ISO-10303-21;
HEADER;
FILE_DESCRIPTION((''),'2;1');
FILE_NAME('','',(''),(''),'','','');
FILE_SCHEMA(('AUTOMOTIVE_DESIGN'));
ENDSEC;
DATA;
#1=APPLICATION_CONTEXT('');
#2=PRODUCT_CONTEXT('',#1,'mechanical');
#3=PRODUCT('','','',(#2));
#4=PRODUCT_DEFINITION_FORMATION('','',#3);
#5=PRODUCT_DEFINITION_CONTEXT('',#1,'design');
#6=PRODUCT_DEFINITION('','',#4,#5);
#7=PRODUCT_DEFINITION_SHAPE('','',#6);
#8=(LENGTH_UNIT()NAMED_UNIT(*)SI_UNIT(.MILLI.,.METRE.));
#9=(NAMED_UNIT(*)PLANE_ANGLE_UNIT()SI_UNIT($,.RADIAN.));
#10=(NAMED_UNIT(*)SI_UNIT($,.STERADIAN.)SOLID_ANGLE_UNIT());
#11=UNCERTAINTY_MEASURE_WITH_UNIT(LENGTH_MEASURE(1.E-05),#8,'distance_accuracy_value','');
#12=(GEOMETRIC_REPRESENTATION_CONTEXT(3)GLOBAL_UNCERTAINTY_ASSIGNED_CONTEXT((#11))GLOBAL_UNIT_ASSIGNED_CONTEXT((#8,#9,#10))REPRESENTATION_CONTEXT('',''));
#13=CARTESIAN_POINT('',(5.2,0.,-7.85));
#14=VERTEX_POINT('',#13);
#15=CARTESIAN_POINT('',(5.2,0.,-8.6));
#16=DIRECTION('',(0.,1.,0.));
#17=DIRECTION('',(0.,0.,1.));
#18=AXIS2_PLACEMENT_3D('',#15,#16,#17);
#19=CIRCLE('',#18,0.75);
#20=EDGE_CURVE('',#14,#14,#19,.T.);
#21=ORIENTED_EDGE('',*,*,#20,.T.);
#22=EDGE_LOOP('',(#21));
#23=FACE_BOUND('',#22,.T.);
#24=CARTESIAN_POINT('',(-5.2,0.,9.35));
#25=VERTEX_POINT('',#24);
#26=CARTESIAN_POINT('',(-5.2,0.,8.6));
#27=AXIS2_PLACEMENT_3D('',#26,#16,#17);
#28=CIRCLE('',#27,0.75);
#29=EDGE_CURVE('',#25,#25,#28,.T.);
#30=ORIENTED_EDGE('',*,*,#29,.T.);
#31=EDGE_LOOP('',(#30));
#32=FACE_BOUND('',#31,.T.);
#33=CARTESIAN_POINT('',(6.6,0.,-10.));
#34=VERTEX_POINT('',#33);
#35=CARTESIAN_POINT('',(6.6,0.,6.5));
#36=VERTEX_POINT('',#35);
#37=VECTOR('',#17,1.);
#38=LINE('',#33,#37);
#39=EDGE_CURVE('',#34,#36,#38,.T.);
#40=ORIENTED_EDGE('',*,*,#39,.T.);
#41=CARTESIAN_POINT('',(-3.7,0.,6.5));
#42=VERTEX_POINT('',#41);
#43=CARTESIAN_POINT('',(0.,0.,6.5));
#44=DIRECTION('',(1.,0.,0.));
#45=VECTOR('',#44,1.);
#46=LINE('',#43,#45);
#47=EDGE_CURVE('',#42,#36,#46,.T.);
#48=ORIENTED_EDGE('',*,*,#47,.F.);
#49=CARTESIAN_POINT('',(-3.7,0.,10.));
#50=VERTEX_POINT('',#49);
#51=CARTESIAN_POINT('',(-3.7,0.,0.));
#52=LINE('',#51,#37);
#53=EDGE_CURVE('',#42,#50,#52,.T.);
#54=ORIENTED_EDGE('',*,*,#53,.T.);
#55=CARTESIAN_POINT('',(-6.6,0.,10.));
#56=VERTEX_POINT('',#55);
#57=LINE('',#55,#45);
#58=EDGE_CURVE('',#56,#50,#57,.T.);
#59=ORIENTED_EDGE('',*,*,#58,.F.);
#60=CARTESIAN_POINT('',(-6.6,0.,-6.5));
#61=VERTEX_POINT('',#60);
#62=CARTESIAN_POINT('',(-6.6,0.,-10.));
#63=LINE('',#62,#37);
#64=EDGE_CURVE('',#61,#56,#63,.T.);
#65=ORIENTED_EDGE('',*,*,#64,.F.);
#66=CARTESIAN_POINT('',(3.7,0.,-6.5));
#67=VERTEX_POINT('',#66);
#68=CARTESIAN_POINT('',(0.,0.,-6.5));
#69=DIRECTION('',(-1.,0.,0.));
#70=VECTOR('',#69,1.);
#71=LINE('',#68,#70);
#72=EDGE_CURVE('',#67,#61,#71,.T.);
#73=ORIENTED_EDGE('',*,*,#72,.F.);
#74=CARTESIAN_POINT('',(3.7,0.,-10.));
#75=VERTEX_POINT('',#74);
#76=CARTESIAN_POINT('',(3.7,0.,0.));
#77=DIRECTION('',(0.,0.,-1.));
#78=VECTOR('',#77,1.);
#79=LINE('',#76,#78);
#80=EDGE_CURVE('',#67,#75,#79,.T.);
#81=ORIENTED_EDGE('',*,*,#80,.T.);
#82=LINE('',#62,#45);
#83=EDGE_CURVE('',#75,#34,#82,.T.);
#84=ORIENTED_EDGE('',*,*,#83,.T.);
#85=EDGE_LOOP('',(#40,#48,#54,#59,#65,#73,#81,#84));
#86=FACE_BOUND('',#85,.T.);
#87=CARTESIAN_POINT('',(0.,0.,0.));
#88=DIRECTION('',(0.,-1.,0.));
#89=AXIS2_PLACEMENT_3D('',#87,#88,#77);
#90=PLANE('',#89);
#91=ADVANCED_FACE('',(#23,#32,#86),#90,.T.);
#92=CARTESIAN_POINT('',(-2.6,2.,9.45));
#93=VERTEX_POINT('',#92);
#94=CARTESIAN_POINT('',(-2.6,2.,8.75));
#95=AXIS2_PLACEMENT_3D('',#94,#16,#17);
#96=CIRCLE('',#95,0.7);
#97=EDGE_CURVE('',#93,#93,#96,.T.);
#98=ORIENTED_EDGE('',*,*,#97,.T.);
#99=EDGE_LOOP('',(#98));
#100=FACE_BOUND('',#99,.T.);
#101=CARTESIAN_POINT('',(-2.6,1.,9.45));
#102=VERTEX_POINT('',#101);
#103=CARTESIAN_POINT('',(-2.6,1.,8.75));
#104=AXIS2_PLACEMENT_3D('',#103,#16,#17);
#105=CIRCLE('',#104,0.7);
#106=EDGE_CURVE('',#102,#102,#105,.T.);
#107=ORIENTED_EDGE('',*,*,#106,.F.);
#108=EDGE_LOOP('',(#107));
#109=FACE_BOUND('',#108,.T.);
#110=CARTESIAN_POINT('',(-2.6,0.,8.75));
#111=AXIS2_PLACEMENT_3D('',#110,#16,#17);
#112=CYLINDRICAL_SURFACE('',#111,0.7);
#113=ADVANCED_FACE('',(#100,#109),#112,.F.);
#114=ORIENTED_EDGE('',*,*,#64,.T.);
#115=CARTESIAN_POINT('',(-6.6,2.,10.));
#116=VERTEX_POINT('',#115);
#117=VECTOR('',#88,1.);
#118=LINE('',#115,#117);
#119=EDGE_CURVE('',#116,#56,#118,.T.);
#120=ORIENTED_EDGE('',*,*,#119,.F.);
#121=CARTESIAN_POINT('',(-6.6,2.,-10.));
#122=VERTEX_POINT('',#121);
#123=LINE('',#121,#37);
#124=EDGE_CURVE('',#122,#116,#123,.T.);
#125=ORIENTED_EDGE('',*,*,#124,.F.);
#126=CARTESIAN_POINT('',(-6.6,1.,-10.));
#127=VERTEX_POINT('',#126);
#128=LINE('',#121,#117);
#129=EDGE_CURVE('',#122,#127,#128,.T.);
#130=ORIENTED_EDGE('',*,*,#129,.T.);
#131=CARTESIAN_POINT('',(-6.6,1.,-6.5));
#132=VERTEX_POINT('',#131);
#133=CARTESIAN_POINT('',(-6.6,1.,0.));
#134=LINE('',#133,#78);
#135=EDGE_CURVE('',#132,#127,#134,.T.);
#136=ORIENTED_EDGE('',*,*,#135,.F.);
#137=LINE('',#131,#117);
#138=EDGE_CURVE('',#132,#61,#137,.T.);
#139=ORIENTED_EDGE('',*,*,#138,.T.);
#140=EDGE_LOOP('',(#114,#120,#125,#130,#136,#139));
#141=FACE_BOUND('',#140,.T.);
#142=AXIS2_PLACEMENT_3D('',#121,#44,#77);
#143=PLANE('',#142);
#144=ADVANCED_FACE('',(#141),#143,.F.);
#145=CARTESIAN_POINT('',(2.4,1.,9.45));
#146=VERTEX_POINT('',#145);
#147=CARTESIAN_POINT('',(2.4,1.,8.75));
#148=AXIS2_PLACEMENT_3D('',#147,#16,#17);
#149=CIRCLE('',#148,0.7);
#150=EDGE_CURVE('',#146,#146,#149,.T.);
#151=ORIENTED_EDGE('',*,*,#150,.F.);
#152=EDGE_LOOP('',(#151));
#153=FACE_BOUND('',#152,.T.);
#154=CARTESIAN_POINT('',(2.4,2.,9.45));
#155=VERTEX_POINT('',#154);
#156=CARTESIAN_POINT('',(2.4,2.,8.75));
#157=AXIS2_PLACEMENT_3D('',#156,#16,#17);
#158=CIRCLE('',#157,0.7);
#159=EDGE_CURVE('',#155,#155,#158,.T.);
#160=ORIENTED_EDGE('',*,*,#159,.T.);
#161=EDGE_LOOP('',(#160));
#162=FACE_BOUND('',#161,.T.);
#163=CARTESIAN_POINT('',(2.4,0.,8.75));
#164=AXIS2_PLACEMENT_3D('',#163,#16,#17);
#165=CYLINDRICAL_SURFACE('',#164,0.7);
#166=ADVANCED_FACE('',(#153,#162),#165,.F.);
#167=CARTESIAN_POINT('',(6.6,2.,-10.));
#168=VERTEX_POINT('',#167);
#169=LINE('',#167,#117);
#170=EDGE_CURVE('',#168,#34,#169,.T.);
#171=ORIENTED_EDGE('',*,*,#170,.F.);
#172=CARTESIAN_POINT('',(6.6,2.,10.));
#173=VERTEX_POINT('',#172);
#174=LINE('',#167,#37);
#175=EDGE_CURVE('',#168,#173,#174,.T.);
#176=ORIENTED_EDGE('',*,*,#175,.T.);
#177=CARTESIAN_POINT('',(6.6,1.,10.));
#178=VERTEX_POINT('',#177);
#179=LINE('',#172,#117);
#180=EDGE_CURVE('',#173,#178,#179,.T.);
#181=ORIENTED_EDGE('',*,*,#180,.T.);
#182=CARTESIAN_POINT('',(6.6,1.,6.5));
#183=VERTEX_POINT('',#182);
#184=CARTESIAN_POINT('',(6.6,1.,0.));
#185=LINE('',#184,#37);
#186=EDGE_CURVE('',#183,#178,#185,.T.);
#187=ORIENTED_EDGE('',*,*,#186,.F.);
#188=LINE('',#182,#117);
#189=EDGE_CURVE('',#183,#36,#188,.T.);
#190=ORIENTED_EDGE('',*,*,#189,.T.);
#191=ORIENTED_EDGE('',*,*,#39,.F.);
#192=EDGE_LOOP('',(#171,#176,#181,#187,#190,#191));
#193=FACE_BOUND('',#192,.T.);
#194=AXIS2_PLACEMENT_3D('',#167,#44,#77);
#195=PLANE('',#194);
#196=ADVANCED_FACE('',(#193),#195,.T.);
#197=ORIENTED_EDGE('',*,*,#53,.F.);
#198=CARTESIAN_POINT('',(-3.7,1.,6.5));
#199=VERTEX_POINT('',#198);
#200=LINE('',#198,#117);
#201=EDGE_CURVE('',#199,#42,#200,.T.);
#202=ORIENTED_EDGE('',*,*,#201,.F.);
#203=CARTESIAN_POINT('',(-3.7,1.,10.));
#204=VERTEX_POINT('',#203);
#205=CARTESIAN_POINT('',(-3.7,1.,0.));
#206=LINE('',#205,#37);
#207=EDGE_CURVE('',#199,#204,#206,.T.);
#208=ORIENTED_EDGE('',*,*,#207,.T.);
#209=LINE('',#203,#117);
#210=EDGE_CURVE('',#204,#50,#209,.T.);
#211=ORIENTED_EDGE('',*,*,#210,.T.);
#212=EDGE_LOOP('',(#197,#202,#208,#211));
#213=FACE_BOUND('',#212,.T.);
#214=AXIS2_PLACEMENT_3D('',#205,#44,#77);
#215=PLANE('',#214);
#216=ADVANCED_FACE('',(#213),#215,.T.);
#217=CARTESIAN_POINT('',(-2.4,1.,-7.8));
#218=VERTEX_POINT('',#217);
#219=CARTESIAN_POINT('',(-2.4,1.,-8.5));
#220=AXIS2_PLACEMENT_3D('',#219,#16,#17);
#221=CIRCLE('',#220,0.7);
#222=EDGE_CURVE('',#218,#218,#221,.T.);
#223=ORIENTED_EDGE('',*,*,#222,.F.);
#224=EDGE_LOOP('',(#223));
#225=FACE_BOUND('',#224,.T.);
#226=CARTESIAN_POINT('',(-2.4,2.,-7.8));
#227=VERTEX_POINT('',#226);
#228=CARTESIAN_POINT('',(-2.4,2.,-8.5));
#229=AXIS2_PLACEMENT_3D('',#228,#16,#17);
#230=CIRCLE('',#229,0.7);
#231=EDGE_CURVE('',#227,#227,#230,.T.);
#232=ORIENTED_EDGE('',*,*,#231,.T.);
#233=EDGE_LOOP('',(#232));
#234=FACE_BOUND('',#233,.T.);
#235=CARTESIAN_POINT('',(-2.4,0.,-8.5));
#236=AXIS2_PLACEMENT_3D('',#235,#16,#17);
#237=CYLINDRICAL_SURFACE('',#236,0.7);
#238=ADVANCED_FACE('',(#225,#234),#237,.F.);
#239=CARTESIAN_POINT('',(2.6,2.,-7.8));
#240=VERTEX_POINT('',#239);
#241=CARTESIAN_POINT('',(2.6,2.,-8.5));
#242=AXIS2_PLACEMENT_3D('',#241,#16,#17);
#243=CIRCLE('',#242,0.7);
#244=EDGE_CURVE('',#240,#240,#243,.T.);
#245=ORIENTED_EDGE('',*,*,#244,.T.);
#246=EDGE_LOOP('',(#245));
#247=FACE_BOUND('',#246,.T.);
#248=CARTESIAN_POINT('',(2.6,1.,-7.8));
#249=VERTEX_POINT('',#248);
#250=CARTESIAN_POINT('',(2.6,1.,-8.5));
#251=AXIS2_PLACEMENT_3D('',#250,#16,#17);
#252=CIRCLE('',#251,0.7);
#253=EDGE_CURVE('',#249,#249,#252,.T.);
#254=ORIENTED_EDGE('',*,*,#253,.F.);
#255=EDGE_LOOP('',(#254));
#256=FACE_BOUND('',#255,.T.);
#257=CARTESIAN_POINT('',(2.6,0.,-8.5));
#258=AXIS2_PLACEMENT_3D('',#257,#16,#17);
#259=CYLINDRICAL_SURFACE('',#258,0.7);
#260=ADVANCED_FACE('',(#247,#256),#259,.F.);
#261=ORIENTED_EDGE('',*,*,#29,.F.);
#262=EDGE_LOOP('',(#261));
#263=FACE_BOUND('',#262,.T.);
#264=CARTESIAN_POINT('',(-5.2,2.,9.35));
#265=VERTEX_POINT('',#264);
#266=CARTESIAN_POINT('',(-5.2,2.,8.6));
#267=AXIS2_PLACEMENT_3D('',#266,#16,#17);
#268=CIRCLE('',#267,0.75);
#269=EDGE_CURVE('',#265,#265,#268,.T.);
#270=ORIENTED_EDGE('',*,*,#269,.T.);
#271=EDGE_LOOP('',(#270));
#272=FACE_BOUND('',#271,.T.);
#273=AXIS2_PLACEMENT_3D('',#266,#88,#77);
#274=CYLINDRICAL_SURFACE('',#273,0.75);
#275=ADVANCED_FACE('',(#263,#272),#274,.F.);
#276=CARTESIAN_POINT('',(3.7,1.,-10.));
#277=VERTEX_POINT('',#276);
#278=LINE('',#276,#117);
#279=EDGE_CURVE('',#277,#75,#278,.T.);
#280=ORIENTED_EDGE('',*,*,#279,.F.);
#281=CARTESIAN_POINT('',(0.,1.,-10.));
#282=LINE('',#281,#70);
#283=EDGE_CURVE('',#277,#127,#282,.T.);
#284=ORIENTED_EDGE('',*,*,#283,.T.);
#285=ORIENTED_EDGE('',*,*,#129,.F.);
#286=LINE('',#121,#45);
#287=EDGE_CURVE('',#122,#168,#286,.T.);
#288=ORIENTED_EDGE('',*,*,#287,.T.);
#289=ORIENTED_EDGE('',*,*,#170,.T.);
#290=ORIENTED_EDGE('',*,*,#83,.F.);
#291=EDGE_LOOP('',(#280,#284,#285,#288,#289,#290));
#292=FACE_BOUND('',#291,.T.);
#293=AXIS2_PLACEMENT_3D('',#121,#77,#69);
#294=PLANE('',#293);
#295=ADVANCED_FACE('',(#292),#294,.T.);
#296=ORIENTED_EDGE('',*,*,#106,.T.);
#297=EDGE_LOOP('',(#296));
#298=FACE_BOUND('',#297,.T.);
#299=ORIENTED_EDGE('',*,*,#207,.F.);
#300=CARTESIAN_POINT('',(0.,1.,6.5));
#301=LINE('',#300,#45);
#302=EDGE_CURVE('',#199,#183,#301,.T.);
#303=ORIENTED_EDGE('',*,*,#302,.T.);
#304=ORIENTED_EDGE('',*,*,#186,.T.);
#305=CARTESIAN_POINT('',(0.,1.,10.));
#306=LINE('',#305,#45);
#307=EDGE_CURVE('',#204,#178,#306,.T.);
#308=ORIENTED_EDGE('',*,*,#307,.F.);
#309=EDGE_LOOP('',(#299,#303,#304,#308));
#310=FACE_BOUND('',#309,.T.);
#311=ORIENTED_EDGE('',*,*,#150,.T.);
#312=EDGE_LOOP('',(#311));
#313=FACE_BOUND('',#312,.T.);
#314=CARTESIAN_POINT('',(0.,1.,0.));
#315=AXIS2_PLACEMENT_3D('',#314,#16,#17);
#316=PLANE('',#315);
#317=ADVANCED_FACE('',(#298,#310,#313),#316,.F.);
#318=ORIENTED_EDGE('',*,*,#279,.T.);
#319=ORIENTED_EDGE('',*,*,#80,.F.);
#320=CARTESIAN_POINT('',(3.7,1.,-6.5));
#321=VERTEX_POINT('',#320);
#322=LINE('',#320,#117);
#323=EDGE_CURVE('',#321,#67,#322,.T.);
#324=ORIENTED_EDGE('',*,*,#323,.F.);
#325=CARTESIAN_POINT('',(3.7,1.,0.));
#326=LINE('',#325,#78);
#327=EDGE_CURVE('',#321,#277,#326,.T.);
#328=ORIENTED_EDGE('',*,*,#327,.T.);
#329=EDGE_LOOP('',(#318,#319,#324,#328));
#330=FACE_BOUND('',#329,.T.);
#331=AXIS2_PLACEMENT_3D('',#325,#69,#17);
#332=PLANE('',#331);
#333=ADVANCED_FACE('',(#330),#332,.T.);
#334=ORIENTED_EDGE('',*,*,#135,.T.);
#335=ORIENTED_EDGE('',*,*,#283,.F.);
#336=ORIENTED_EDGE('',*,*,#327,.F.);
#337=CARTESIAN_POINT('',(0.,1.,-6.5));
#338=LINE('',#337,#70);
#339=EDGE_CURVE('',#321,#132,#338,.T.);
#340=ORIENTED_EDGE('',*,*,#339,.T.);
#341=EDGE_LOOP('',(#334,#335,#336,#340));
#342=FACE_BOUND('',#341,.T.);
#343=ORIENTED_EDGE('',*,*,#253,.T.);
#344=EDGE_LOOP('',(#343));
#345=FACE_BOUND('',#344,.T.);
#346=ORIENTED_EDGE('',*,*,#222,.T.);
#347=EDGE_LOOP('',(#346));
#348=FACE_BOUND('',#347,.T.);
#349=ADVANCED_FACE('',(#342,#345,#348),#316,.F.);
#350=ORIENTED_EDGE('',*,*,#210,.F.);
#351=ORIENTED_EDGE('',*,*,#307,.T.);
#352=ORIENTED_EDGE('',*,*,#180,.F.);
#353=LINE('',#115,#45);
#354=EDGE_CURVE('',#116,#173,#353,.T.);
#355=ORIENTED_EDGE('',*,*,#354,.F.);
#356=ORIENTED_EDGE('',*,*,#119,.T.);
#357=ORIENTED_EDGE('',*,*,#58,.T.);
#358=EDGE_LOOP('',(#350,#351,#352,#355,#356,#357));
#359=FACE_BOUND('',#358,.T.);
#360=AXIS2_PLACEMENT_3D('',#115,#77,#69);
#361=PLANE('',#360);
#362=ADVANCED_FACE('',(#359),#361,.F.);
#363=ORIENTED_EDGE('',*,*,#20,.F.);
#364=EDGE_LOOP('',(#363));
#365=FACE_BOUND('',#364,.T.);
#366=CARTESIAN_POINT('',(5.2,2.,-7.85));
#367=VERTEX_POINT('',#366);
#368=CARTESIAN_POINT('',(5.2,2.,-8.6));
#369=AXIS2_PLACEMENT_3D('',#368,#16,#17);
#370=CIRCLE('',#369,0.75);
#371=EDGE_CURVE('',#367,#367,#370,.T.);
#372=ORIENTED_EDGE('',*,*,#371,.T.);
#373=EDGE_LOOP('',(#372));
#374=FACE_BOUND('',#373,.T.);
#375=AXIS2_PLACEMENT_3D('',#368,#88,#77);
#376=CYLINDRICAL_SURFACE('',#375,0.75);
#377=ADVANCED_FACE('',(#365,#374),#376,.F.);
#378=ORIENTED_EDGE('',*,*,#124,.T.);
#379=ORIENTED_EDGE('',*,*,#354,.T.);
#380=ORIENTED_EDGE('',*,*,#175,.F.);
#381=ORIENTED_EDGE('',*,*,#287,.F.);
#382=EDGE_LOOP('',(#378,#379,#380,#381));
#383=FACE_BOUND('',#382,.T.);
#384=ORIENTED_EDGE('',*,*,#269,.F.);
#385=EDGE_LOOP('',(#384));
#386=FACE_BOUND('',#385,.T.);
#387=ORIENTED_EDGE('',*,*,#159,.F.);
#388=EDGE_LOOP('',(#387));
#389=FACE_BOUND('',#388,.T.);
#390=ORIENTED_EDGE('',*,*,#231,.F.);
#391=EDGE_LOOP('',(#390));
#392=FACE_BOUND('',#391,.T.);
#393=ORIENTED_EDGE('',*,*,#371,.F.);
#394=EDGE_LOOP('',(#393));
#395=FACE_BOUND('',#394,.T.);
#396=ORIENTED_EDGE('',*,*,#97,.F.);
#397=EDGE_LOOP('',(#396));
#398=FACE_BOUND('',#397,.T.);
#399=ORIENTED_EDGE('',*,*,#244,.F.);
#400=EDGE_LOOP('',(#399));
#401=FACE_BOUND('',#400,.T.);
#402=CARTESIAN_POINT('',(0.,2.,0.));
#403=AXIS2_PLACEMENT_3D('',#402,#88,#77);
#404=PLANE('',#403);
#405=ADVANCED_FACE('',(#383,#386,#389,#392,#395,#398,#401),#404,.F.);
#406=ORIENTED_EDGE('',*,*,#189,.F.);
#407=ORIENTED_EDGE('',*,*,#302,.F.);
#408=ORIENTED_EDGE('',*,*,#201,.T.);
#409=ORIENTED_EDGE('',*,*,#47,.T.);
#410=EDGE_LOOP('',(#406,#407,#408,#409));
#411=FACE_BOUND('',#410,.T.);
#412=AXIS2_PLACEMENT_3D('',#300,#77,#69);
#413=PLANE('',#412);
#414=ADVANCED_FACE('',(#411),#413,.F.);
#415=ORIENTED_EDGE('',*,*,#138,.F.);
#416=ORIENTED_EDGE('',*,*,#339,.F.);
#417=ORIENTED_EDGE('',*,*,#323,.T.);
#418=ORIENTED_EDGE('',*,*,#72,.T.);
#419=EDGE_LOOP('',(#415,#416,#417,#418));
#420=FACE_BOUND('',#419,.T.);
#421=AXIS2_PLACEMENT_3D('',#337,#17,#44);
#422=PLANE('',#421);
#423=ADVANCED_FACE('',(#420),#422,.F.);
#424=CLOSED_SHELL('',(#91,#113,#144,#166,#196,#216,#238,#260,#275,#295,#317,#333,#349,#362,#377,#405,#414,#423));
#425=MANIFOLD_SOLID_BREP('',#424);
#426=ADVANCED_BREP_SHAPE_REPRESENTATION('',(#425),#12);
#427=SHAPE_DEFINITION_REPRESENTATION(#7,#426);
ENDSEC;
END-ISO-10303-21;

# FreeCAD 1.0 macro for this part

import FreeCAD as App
import Part
import Sketcher
Q = App.Units.Quantity


def add_polygon(sketch, points):
    """Adds a closed chain of lines whose ends are joined by coincident constraints."""
    first, n = sketch.GeometryCount, len(points)
    for a, b in zip(points, points[1:] + points[:1]):
        sketch.addGeometry(Part.LineSegment(App.Vector(*a, 0), App.Vector(*b, 0)), False)
    for i in range(n):
        sketch.addConstraint(Sketcher.Constraint("Coincident", first + i, 2, first + (i + 1) % n, 1))

doc = App.newDocument("Part")
body = doc.addObject("PartDesign::Body", "Body")

# Sketch on XZ plane
sketch1 = body.newObject("Sketcher::SketchObject", "Sketch")
sketch1.AttachmentSupport = (doc.getObject("XZ_Plane"), [""])
sketch1.MapMode = "FlatFace"
add_polygon(sketch1, [(-7, -10), (-7, 10), (7, 10), (7, -10)])  # lines 0-3
sketch1.addConstraint(Sketcher.Constraint("Vertical", 0))
sketch1.addConstraint(Sketcher.Constraint("Horizontal", 1))
sketch1.addConstraint(Sketcher.Constraint("Vertical", 2))
sketch1.addConstraint(Sketcher.Constraint("Horizontal", 3))
sketch1.addConstraint(Sketcher.Constraint("Symmetric", 0, 2, 2, 2, -1, 1))
sketch1.addConstraint(Sketcher.Constraint("DistanceY", 0, 1, 0, 2, Q("20 mm")))
sketch1.addConstraint(Sketcher.Constraint("DistanceX", 1, 1, 1, 2, Q("13.2 mm")))
pad1 = body.newObject("PartDesign::Pad", "Pad")
pad1.Profile = sketch1
pad1.Length = 2
pad1.Reversed = True

# Sketch on XZ plane
sketch2 = body.newObject("Sketcher::SketchObject", "Sketch001")
sketch2.AttachmentSupport = (doc.getObject("XZ_Plane"), [""])
sketch2.MapMode = "FlatFace"
sketch2.addGeometry(Part.Circle(App.Vector(-5.2, 8.6, 0), App.Vector(0, 0, 1), 0.8), False)
sketch2.addGeometry(Part.Circle(App.Vector(5.2, -8.6, 0), App.Vector(0, 0, 1), 0.8), False)
sketch2.addConstraint(Sketcher.Constraint("Equal", 0, 1))
sketch2.addConstraint(Sketcher.Constraint("Symmetric", 0, 3, 1, 3, -1, 1))
sketch2.addConstraint(Sketcher.Constraint("Diameter", 0, Q("1.5 mm")))
sketch2.addConstraint(Sketcher.Constraint("DistanceX", 0, 3, -1, 1, Q("5.2 mm")))
sketch2.addConstraint(Sketcher.Constraint("DistanceY", -1, 1, 0, 3, Q("8.6 mm")))
pocket1 = body.newObject("PartDesign::Pocket", "Pocket")
pocket1.Profile = sketch2
pocket1.Type = "ThroughAll"

# Sketch on XZ plane
sketch3 = body.newObject("Sketcher::SketchObject", "Sketch002")
sketch3.AttachmentSupport = (doc.getObject("XZ_Plane"), [""])
sketch3.MapMode = "FlatFace"
add_polygon(sketch3, [(-6.6, -10), (-6.6, -6.5), (3.7, -6.5), (3.7, -10)])  # lines 0-3
add_polygon(sketch3, [(-3.7, 6.5), (-3.7, 10), (6.6, 10), (6.6, 6.5)])  # lines 4-7
sketch3.addConstraint(Sketcher.Constraint("Vertical", 0))
sketch3.addConstraint(Sketcher.Constraint("Horizontal", 1))
sketch3.addConstraint(Sketcher.Constraint("Vertical", 2))
sketch3.addConstraint(Sketcher.Constraint("Horizontal", 3))
sketch3.addConstraint(Sketcher.Constraint("Vertical", 4))
sketch3.addConstraint(Sketcher.Constraint("Horizontal", 5))
sketch3.addConstraint(Sketcher.Constraint("Vertical", 6))
sketch3.addConstraint(Sketcher.Constraint("Horizontal", 7))
sketch3.addConstraint(Sketcher.Constraint("Symmetric", 2, 2, 4, 2, -1, 1))
sketch3.addConstraint(Sketcher.Constraint("Symmetric", 0, 2, 6, 2, -1, 1))
sketch3.addConstraint(Sketcher.Constraint("DistanceX", 1, 1, 1, 2, Q("10.3 mm")))
sketch3.addConstraint(Sketcher.Constraint("DistanceY", 0, 1, 0, 2, Q("3.5 mm")))
sketch3.addConstraint(Sketcher.Constraint("DistanceY", 2, 2, -1, 1, Q("10 mm")))
sketch3.addConstraint(Sketcher.Constraint("DistanceX", 0, 2, -1, 1, Q("6.6 mm")))
pocket2 = body.newObject("PartDesign::Pocket", "Pocket001")
pocket2.Profile = sketch3
pocket2.Length = 1

# Sketch on XZ plane
sketch4 = body.newObject("Sketcher::SketchObject", "Sketch003")
sketch4.AttachmentSupport = (doc.getObject("XZ_Plane"), [""])
sketch4.MapMode = "FlatFace"
sketch4.AttachmentOffset = App.Placement(App.Vector(0, 0, -2), App.Rotation())
sketch4.addGeometry(Part.Circle(App.Vector(-2.6, 8.8, 0), App.Vector(0, 0, 1), 0.7), False)
sketch4.addGeometry(Part.Circle(App.Vector(2.4, 8.8, 0), App.Vector(0, 0, 1), 0.7), False)
sketch4.addGeometry(Part.Circle(App.Vector(-2.4, -8.5, 0), App.Vector(0, 0, 1), 0.7), False)
sketch4.addGeometry(Part.Circle(App.Vector(2.6, -8.5, 0), App.Vector(0, 0, 1), 0.7), False)
sketch4.addConstraint(Sketcher.Constraint("Equal", 0, 1))
sketch4.addConstraint(Sketcher.Constraint("Equal", 1, 2))
sketch4.addConstraint(Sketcher.Constraint("Equal", 2, 3))
sketch4.addConstraint(Sketcher.Constraint("Horizontal", 0, 3, 1, 3))
sketch4.addConstraint(Sketcher.Constraint("Horizontal", 2, 3, 3, 3))
sketch4.addConstraint(Sketcher.Constraint("Diameter", 0, Q("1.4 mm")))
sketch4.addConstraint(Sketcher.Constraint("DistanceX", 0, 3, 1, 3, Q("5 mm")))
sketch4.addConstraint(Sketcher.Constraint("DistanceX", 2, 3, 3, 3, Q("5 mm")))
sketch4.addConstraint(Sketcher.Constraint("DistanceX", 0, 3, -1, 1, Q("2.6 mm")))
sketch4.addConstraint(Sketcher.Constraint("DistanceX", 2, 3, -1, 1, Q("2.4 mm")))
sketch4.addConstraint(Sketcher.Constraint("DistanceY", 2, 3, -1, 1, Q("8.5 mm")))
sketch4.addConstraint(Sketcher.Constraint("DistanceY", -1, 1, 0, 3, Q("8.75 mm")))
pocket3 = body.newObject("PartDesign::Pocket", "Pocket002")
pocket3.Profile = sketch4
pocket3.Type = "ThroughAll"
pocket3.Reversed = True

doc.recompute()
